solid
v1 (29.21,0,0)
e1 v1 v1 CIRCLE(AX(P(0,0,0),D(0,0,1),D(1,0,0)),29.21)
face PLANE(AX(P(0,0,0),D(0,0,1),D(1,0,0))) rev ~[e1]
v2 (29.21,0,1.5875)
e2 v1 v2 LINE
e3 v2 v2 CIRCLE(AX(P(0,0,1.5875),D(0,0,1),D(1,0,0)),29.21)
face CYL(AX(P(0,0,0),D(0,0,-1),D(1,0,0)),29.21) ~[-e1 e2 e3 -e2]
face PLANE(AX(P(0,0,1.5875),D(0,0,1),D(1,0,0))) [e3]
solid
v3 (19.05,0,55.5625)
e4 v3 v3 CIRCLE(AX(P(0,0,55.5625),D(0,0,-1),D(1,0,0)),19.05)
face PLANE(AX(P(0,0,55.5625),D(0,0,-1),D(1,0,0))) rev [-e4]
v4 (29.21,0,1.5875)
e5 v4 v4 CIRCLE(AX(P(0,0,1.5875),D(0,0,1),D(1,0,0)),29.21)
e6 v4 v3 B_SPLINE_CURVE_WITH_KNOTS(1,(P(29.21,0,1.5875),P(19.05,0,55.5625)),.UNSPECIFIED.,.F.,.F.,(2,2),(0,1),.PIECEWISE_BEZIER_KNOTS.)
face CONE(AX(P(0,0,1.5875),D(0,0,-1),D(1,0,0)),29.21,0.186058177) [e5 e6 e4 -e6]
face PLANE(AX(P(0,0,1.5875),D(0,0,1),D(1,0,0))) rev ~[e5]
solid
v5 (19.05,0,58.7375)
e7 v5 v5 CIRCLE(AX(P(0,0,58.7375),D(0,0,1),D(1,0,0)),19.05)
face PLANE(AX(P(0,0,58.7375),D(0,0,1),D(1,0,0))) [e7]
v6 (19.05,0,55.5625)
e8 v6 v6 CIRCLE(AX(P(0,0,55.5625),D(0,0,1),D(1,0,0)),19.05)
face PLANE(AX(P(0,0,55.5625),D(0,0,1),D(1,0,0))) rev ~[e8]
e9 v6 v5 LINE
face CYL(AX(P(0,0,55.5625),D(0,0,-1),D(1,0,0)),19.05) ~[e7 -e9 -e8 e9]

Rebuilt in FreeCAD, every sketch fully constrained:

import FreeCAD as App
import Part
import Sketcher

V = App.Vector
Q = App.Units.Quantity

doc = App.newDocument("Part")
body = doc.addObject("PartDesign::Body", "Body")

# Sketch on XY plane
sketch1 = doc.addObject("Sketcher::SketchObject", "Sketch")
body.addObject(sketch1)
sketch1.AttachmentSupport = (doc.XY_Plane, [""])
sketch1.MapMode = "FlatFace"
sketch1.addGeometry(Part.Circle(V(0, 0, 0), V(0, 0, 1), 29), False)
sketch1.addConstraint([
    Sketcher.Constraint("Coincident", 0, 3, -1, 1),
    Sketcher.Constraint("Diameter", 0, Q("2.3 in")),
])
pad1 = doc.addObject("PartDesign::Pad", "Pad")
body.addObject(pad1)
pad1.Profile = sketch1
pad1.Length = Q("0.0625 in")
body2 = doc.addObject("PartDesign::Body", "Body001")

# Sketch on XY plane
sketch2 = doc.addObject("Sketcher::SketchObject", "Sketch001")
body2.addObject(sketch2)
sketch2.AttachmentSupport = (doc.getObject("XY_Plane001"), [""])
sketch2.MapMode = "FlatFace"
sketch2.AttachmentOffset = App.Placement(V(0, 0, 2.1875 * 25.4), App.Rotation())
sketch2.addGeometry(Part.Circle(V(0, 0, 0), V(0, 0, 1), 19), False)
sketch2.addConstraint([
    Sketcher.Constraint("Coincident", 0, 3, -1, 1),
    Sketcher.Constraint("Diameter", 0, Q("1.5 in")),
])
pad2 = doc.addObject("PartDesign::Pad", "Pad001")
body2.addObject(pad2)
pad2.Profile = sketch2
pad2.Length = Q("0.125 in")
body3 = doc.addObject("PartDesign::Body", "Body002")

# Sketch on XY plane
sketch3 = doc.addObject("Sketcher::SketchObject", "Sketch002")
body3.addObject(sketch3)
sketch3.AttachmentSupport = (doc.getObject("XY_Plane002"), [""])
sketch3.MapMode = "FlatFace"
sketch3.AttachmentOffset = App.Placement(V(0, 0, 0.0625 * 25.4), App.Rotation())
sketch3.addGeometry(Part.Circle(V(0, 0, 0), V(0, 0, 1), 29), False)
sketch3.addConstraint([
    Sketcher.Constraint("Coincident", 0, 3, -1, 1),
    Sketcher.Constraint("Diameter", 0, Q("2.3 in")),
])

# Sketch on XY plane
sketch4 = doc.addObject("Sketcher::SketchObject", "Sketch003")
body3.addObject(sketch4)
sketch4.AttachmentSupport = (doc.getObject("XY_Plane002"), [""])
sketch4.MapMode = "FlatFace"
sketch4.AttachmentOffset = App.Placement(V(0, 0, 2.1875 * 25.4), App.Rotation())
sketch4.addGeometry(Part.Circle(V(0, 0, 0), V(0, 0, 1), 19), False)
sketch4.addConstraint([
    Sketcher.Constraint("Coincident", 0, 3, -1, 1),
    Sketcher.Constraint("Diameter", 0, Q("1.5 in")),
])

additiveloft = doc.addObject("PartDesign::AdditiveLoft", "AdditiveLoft")
body3.addObject(additiveloft)
additiveloft.Profile = sketch3
additiveloft.Sections = [sketch4]

doc.recompute()
